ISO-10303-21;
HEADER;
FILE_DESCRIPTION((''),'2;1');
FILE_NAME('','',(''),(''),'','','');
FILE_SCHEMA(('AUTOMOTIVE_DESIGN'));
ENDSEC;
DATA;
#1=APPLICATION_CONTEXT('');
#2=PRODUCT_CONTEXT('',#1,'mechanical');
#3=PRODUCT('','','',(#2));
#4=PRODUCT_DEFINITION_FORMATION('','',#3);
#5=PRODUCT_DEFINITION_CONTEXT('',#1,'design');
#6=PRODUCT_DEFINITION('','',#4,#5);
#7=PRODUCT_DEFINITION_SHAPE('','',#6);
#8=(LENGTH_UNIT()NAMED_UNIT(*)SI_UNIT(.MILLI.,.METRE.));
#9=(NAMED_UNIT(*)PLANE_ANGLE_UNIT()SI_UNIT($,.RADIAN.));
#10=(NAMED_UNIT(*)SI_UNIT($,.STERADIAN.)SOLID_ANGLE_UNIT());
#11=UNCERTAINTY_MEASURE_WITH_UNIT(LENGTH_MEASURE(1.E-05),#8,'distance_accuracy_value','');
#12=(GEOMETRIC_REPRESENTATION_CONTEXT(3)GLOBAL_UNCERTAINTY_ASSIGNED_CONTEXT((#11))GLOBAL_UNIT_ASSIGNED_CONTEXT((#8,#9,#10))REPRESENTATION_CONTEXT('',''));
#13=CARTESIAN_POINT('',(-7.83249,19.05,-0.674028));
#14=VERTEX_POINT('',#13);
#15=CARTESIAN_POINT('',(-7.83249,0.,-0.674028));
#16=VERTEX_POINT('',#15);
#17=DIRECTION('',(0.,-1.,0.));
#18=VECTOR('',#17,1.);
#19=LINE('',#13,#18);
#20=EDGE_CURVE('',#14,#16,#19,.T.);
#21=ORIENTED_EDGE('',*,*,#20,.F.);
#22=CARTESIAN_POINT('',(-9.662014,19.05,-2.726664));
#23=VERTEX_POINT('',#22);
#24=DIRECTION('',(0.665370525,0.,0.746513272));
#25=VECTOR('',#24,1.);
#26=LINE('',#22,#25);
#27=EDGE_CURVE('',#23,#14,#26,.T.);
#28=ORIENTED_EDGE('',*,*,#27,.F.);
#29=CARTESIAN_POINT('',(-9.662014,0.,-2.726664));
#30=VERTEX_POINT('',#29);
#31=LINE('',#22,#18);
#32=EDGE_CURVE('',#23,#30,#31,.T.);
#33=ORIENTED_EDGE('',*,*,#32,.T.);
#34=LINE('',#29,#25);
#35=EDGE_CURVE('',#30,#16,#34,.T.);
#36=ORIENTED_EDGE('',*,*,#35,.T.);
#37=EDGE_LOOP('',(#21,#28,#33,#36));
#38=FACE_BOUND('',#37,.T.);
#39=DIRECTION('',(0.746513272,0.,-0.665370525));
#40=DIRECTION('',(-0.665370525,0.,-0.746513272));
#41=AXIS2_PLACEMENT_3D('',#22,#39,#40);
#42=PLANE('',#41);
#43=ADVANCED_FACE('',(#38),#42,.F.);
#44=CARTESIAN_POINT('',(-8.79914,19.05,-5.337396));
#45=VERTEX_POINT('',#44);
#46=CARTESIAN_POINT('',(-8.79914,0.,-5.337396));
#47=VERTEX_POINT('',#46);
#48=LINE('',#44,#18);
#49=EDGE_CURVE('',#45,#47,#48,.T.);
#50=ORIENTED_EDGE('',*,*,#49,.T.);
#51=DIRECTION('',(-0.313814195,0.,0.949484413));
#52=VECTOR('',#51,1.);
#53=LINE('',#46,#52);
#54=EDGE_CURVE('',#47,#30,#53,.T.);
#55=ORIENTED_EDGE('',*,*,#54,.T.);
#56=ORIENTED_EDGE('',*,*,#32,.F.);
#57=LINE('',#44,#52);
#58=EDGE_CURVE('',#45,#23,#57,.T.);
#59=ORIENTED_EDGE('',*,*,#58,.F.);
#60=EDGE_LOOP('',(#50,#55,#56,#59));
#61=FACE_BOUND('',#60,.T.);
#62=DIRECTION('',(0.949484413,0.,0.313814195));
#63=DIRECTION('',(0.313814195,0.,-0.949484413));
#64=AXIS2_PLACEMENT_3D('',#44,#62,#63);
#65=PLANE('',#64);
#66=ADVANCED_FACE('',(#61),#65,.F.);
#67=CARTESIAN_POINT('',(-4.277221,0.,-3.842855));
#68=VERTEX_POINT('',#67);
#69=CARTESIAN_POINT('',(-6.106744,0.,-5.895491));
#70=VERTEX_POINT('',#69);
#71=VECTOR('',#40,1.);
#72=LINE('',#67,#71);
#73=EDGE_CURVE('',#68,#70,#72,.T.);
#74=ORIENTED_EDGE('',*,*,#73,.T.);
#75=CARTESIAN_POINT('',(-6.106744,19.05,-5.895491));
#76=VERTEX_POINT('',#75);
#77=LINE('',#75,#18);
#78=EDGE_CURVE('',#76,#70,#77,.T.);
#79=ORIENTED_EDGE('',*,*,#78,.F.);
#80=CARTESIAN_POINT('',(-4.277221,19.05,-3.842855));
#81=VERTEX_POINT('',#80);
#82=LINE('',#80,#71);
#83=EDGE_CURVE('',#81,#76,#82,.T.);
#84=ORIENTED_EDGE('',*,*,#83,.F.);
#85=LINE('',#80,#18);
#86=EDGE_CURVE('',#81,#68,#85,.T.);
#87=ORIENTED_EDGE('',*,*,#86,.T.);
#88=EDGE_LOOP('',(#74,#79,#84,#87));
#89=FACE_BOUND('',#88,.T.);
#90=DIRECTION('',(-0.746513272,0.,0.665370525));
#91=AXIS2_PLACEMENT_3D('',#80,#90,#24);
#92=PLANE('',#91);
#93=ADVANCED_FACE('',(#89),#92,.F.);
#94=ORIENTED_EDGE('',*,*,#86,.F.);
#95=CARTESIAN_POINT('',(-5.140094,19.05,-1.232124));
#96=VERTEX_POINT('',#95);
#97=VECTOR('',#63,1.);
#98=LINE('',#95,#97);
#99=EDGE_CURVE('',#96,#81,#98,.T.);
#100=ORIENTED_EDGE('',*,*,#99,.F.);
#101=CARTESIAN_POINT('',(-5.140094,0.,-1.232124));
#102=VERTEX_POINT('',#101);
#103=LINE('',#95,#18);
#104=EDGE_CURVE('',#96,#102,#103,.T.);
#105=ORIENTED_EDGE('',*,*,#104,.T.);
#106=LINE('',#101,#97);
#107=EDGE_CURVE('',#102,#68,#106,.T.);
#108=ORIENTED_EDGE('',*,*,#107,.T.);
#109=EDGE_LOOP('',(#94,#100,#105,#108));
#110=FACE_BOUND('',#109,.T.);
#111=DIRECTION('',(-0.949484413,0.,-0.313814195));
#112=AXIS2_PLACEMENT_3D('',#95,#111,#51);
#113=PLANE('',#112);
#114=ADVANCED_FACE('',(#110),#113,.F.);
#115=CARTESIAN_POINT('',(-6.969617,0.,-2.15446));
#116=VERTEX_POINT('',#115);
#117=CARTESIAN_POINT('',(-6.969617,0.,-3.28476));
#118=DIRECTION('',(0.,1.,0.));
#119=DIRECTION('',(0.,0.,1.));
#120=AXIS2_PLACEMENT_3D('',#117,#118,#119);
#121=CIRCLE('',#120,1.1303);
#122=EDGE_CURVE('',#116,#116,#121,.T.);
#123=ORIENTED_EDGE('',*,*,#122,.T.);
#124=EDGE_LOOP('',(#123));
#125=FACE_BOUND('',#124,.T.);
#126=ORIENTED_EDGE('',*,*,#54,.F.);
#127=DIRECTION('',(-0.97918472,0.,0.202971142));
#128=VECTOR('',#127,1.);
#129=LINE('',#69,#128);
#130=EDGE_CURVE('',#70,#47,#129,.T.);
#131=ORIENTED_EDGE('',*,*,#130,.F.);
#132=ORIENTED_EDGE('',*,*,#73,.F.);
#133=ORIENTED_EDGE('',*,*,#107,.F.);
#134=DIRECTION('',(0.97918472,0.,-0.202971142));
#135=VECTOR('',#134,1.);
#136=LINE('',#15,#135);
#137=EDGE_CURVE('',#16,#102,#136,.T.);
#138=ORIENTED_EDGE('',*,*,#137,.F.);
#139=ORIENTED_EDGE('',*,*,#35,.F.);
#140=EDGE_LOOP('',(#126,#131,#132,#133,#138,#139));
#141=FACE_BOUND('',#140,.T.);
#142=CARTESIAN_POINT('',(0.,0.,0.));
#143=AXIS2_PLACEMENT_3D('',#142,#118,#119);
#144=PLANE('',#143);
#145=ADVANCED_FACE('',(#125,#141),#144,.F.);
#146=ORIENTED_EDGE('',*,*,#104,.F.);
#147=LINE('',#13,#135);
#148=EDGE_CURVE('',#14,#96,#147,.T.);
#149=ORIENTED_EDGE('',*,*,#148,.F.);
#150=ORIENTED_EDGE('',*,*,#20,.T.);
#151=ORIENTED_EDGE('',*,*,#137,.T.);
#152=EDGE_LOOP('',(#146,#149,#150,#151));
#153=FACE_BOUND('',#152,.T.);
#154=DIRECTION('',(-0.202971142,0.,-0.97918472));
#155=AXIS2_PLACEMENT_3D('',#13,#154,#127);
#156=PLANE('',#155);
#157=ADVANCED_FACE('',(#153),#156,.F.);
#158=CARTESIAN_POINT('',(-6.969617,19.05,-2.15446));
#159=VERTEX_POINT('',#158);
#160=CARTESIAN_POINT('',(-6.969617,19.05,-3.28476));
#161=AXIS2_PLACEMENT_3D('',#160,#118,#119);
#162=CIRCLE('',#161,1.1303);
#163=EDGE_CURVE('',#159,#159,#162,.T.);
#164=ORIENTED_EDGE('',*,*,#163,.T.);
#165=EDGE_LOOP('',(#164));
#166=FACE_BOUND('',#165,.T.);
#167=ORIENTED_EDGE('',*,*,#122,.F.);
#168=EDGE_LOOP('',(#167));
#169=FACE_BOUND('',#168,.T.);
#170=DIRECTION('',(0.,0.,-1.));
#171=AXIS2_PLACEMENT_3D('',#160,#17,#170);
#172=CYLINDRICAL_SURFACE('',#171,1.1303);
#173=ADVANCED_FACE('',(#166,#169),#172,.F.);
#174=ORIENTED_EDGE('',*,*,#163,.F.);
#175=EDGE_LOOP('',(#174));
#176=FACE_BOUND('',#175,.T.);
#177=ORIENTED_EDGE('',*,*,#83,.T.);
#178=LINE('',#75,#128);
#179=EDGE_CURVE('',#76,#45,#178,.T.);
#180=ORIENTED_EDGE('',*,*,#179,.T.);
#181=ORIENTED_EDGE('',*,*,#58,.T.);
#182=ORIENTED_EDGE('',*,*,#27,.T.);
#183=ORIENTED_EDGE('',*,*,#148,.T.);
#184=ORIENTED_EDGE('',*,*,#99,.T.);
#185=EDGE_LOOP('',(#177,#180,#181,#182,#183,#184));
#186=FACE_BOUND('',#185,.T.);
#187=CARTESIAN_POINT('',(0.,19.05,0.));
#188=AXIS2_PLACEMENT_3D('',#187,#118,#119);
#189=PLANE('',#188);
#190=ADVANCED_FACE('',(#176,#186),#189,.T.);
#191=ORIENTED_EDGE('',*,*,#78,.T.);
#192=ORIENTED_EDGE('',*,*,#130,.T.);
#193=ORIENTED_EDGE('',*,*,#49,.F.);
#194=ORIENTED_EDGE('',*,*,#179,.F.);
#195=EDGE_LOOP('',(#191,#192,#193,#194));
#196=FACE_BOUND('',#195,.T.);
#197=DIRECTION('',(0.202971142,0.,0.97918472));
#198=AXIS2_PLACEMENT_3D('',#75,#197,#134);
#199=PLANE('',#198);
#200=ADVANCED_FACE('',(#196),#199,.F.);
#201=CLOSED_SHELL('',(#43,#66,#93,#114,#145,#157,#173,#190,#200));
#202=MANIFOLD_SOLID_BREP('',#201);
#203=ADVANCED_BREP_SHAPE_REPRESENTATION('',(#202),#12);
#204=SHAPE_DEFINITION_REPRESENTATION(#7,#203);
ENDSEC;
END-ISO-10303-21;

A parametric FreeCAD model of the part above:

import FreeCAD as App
import Part
import Sketcher
from FreeCAD import Vector
Q = App.Units.Quantity

doc = App.newDocument("Part")
body = doc.addObject("PartDesign::Body", "Body")

# Sketch on XZ plane
sketch1 = body.newObject("Sketcher::SketchObject", "Sketch")
sketch1.AttachmentSupport = (doc.getObject("XZ_Plane"), [""])
sketch1.MapMode = "FlatFace"
sketch1.addGeometry(Part.LineSegment(Vector(-5.1, -1.2, 0), Vector(-4.3, -3.8, 0)), False)
sketch1.addGeometry(Part.LineSegment(Vector(-4.3, -3.8, 0), Vector(-6.1, -5.9, 0)), False)
sketch1.addGeometry(Part.LineSegment(Vector(-6.1, -5.9, 0), Vector(-8.8, -5.3, 0)), False)
sketch1.addGeometry(Part.LineSegment(Vector(-8.8, -5.3, 0), Vector(-9.7, -2.7, 0)), False)
sketch1.addGeometry(Part.LineSegment(Vector(-9.7, -2.7, 0), Vector(-7.8, -0.7, 0)), False)
sketch1.addGeometry(Part.LineSegment(Vector(-7.8, -0.7, 0), Vector(-5.1, -1.2, 0)), False)
sketch1.addGeometry(Part.Circle(Vector(-7, -3.3, 0), Vector(0, 0, 1), 1.1), False)
sketch1.addConstraint(Sketcher.Constraint("Coincident", 0, 2, 1, 1))
sketch1.addConstraint(Sketcher.Constraint("Coincident", 1, 2, 2, 1))
sketch1.addConstraint(Sketcher.Constraint("Coincident", 2, 2, 3, 1))
sketch1.addConstraint(Sketcher.Constraint("Coincident", 3, 2, 4, 1))
sketch1.addConstraint(Sketcher.Constraint("Coincident", 4, 2, 5, 1))
sketch1.addConstraint(Sketcher.Constraint("Coincident", 5, 2, 0, 1))
sketch1.addConstraint(Sketcher.Constraint("Parallel", 0, 3))
sketch1.addConstraint(Sketcher.Constraint("Parallel", 1, 4))
sketch1.addConstraint(Sketcher.Constraint("Parallel", 2, 5))
sketch1.addConstraint(Sketcher.Constraint("Equal", 0, 1))
sketch1.addConstraint(Sketcher.Constraint("Equal", 1, 2))
sketch1.addConstraint(Sketcher.Constraint("Equal", 2, 3))
sketch1.addConstraint(Sketcher.Constraint("Diameter", 6, Q("0.089 in")))
sketch1.addConstraint(Sketcher.Constraint("DistanceX", 6, 3, 0, 2, Q("0.1059999 in")))
sketch1.addConstraint(Sketcher.Constraint("DistanceX", 2, 2, 1, 2, Q("0.1059999 in")))
sketch1.addConstraint(Sketcher.Constraint("DistanceX", 3, 2, 6, 3, Q("0.1059999 in")))
sketch1.addConstraint(Sketcher.Constraint("Distance", 0, 2.749631))
sketch1.addConstraint(Sketcher.Constraint("DistanceY", 6, 3, -1, 1, 3.28476))
sketch1.addConstraint(Sketcher.Constraint("DistanceX", 0, 2, -1, 1, 4.277221))
sketch1.addConstraint(Sketcher.Constraint("DistanceY", 1, 2, -1, 1, 5.895491))
sketch1.addConstraint(Sketcher.Constraint("DistanceX", 2, 2, -1, 1, 8.79914))
pad1 = body.newObject("PartDesign::Pad", "Pad")
pad1.Profile = sketch1
pad1.Length = Q("0.75 in")
pad1.Reversed = True

doc.recompute()
